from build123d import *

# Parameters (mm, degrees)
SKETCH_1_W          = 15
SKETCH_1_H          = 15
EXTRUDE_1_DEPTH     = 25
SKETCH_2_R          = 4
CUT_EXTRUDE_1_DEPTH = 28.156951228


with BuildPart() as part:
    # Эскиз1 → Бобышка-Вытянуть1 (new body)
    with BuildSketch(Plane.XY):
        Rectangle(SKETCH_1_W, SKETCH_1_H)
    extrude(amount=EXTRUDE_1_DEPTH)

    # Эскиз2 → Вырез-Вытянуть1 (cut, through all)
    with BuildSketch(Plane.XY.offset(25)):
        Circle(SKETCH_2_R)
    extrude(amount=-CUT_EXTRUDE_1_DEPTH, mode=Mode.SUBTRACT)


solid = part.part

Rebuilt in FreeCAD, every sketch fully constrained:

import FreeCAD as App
import Part
import Sketcher
from FreeCAD import Vector
Q = App.Units.Quantity


def add_polygon(sketch, points):
    """Adds a closed chain of lines whose ends are joined by coincident constraints."""
    first, n = sketch.GeometryCount, len(points)
    for a, b in zip(points, points[1:] + points[:1]):
        sketch.addGeometry(Part.LineSegment(App.Vector(*a, 0), App.Vector(*b, 0)), False)
    for i in range(n):
        sketch.addConstraint(Sketcher.Constraint("Coincident", first + i, 2, first + (i + 1) % n, 1))

doc = App.newDocument("Part")
body = doc.addObject("PartDesign::Body", "Body")

sketch1 = body.newObject("Sketcher::SketchObject", "Sketch")
sketch1.AttachmentSupport = (doc.getObject("XY_Plane"), [""])
sketch1.MapMode = "FlatFace"
add_polygon(sketch1, [(-7.5, 7.5), (-7.5, -7.5), (7.5, -7.5), (7.5, 7.5)])
sketch1.addConstraint(Sketcher.Constraint("Vertical", 0))
sketch1.addConstraint(Sketcher.Constraint("Horizontal", 1))
sketch1.addConstraint(Sketcher.Constraint("Vertical", 2))
sketch1.addConstraint(Sketcher.Constraint("Horizontal", 3))
sketch1.addConstraint(Sketcher.Constraint("Symmetric", 0, 2, 2, 2, -1, 1))
sketch1.addConstraint(Sketcher.Constraint("Equal", 3, 0))
sketch1.addConstraint(Sketcher.Constraint("DistanceX", 1, 1, 1, 2, Q("15 mm")))
pad1 = body.newObject("PartDesign::Pad", "Pad")
pad1.Profile = sketch1
pad1.Length = 25

sketch2 = body.newObject("Sketcher::SketchObject", "Sketch001")
sketch2.AttachmentSupport = (doc.getObject("XY_Plane"), [""])
sketch2.MapMode = "FlatFace"
sketch2.AttachmentOffset = App.Placement(Vector(0, 0, 25), App.Rotation())
sketch2.addGeometry(Part.Circle(Vector(0, 0, 0), Vector(0, 0, 1), 4), False)
sketch2.addConstraint(Sketcher.Constraint("Coincident", 0, 3, -1, 1))
sketch2.addConstraint(Sketcher.Constraint("Diameter", 0, Q("8 mm")))
pocket1 = body.newObject("PartDesign::Pocket", "Pocket")
pocket1.Profile = sketch2
pocket1.Type = "ThroughAll"

doc.recompute()
